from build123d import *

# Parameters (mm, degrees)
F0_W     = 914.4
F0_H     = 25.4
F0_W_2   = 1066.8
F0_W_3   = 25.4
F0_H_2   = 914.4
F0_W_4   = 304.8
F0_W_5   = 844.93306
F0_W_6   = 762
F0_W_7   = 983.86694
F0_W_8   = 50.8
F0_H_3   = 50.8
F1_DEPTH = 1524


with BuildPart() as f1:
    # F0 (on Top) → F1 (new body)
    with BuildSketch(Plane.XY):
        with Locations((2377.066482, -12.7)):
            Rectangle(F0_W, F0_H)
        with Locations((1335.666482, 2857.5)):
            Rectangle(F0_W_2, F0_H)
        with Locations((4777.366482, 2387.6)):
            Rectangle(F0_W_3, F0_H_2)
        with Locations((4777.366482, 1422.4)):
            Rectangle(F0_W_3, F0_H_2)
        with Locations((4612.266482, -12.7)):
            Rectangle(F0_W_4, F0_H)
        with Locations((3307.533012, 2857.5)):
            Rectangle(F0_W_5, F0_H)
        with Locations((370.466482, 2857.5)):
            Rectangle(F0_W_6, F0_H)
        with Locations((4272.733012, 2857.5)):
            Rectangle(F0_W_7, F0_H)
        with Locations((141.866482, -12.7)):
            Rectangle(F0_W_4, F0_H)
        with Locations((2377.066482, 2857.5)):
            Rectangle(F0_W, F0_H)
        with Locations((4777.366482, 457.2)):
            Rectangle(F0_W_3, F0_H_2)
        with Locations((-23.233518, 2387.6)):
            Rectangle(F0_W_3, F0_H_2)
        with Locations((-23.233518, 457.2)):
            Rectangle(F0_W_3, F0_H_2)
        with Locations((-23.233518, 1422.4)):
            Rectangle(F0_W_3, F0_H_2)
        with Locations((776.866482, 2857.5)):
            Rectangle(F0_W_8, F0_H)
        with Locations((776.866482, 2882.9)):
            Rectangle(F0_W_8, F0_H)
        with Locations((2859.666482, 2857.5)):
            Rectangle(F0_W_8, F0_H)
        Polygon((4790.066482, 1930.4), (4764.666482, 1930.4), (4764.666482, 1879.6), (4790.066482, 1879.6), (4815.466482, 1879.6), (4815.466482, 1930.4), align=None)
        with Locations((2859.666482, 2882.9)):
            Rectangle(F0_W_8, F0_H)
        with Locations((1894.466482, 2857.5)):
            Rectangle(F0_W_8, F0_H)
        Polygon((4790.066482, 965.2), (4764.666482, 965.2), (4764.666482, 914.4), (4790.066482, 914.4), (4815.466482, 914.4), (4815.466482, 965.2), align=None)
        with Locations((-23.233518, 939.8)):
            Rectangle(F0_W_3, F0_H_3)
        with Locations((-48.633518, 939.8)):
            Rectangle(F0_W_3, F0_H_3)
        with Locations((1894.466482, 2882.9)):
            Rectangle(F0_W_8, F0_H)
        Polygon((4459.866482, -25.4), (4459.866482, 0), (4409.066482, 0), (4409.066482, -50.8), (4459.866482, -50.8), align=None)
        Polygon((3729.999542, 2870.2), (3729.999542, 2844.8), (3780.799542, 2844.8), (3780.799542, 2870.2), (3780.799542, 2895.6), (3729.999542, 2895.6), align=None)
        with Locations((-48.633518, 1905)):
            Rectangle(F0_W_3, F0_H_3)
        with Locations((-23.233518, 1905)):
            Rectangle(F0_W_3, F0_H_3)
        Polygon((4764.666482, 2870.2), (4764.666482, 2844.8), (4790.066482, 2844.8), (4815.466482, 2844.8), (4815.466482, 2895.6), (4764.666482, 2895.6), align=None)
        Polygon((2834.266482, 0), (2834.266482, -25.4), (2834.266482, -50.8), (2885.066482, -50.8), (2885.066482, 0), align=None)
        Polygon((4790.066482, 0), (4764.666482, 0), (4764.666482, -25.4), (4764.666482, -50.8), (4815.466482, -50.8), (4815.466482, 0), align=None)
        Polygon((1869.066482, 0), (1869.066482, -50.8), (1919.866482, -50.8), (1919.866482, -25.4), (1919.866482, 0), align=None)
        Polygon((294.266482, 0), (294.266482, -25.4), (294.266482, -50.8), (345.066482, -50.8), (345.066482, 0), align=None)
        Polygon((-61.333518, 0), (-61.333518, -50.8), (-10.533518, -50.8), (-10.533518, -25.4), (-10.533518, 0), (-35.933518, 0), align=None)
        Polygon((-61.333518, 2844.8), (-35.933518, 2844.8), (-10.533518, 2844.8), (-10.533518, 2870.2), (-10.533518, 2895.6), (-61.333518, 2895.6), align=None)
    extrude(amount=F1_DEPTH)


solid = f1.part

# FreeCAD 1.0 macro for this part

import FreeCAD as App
import Part
import Sketcher

V = App.Vector
Q = App.Units.Quantity

doc = App.newDocument("Part")
params = doc.addObject("Spreadsheet::Sheet", "Params")
for row, (alias, value) in enumerate([
    ("sketch1_width", "36 in"),
    ("sketch1_width2", "2 in"),
    ("sketch1_width3", "30 in"),
    ("sketch1_width4", "1 in"),
    ("sketch1_width5", "12 in"),
    ("pad1_length", "60 in"),
], start=1):
    params.set(f"A{row}", alias)
    params.set(f"B{row}", "=" + value)
    params.setAlias(f"B{row}", alias)

body = doc.addObject("PartDesign::Body", "Body")
body.AllowCompound = True

# Sketch on XY plane
sketch1 = body.newObject("Sketcher::SketchObject", "Sketch")
sketch1.AttachmentSupport = (doc.getObject("XY_Plane"), [""])
sketch1.MapMode = "FlatFace"
sketch1.addGeometry([
    Part.LineSegment(V(1920, -25, 0), V(2834, -25, 0)),  # 0
    Part.LineSegment(V(2834, -25, 0), V(2834, -51, 0)),  # 1
    Part.LineSegment(V(2834, -51, 0), V(2885, -51, 0)),  # 2
    Part.LineSegment(V(2885, -51, 0), V(2885, 0, 0)),  # 3
    Part.LineSegment(V(2885, 0, 0), V(1869, 0, 0)),  # 4
    Part.LineSegment(V(1869, 0, 0), V(1869, -51, 0)),  # 5
    Part.LineSegment(V(1869, -51, 0), V(1920, -51, 0)),  # 6
    Part.LineSegment(V(1920, -51, 0), V(1920, -25, 0)),  # 7
    Part.LineSegment(V(802, 2870, 0), V(802, 2896, 0)),  # 8
    Part.LineSegment(V(802, 2896, 0), V(751, 2896, 0)),  # 9
    Part.LineSegment(V(751, 2896, 0), V(751, 2870, 0)),  # 10
    Part.LineSegment(V(751, 2870, 0), V(-11, 2870, 0)),  # 11
    Part.LineSegment(V(-11, 2870, 0), V(-11, 2896, 0)),  # 12
    Part.LineSegment(V(-11, 2896, 0), V(-61, 2896, 0)),  # 13
    Part.LineSegment(V(-61, 2896, 0), V(-61, 2845, 0)),  # 14
    Part.LineSegment(V(-61, 2845, 0), V(-36, 2845, 0)),  # 15
    Part.LineSegment(V(-36, 2845, 0), V(-36, 1930, 0)),  # 16
    Part.LineSegment(V(-36, 1930, 0), V(-61, 1930, 0)),  # 17
    Part.LineSegment(V(-61, 1930, 0), V(-61, 1880, 0)),  # 18
    Part.LineSegment(V(-61, 1880, 0), V(-36, 1880, 0)),  # 19
    Part.LineSegment(V(-36, 1880, 0), V(-36, 965, 0)),  # 20
    Part.LineSegment(V(-36, 965, 0), V(-61, 965, 0)),  # 21
    Part.LineSegment(V(-61, 965, 0), V(-61, 914, 0)),  # 22
    Part.LineSegment(V(-61, 914, 0), V(-36, 914, 0)),  # 23
    Part.LineSegment(V(-36, 914, 0), V(-36, 0, 0)),  # 24
    Part.LineSegment(V(-36, 0, 0), V(-61, 0, 0)),  # 25
    Part.LineSegment(V(-61, 0, 0), V(-61, -51, 0)),  # 26
    Part.LineSegment(V(-61, -51, 0), V(-11, -51, 0)),  # 27
    Part.LineSegment(V(-11, -51, 0), V(-11, -25, 0)),  # 28
    Part.LineSegment(V(-11, -25, 0), V(294, -25, 0)),  # 29
    Part.LineSegment(V(294, -25, 0), V(294, -51, 0)),  # 30
    Part.LineSegment(V(294, -51, 0), V(345, -51, 0)),  # 31
    Part.LineSegment(V(345, -51, 0), V(345, 0, 0)),  # 32
    Part.LineSegment(V(345, 0, 0), V(-11, 0, 0)),  # 33
    Part.LineSegment(V(-11, 0, 0), V(-11, 2845, 0)),  # 34
    Part.LineSegment(V(-11, 2845, 0), V(4765, 2845, 0)),  # 35
    Part.LineSegment(V(4765, 2845, 0), V(4765, 0, 0)),  # 36
    Part.LineSegment(V(4765, 0, 0), V(4409, 0, 0)),  # 37
    Part.LineSegment(V(4409, 0, 0), V(4409, -51, 0)),  # 38
    Part.LineSegment(V(4409, -51, 0), V(4460, -51, 0)),  # 39
    Part.LineSegment(V(4460, -51, 0), V(4460, -25, 0)),  # 40
    Part.LineSegment(V(4460, -25, 0), V(4765, -25, 0)),  # 41
    Part.LineSegment(V(4765, -25, 0), V(4765, -51, 0)),  # 42
    Part.LineSegment(V(4765, -51, 0), V(4815, -51, 0)),  # 43
    Part.LineSegment(V(4815, -51, 0), V(4815, 0, 0)),  # 44
    Part.LineSegment(V(4815, 0, 0), V(4790, 0, 0)),  # 45
    Part.LineSegment(V(4790, 0, 0), V(4790, 914, 0)),  # 46
    Part.LineSegment(V(4790, 914, 0), V(4815, 914, 0)),  # 47
    Part.LineSegment(V(4815, 914, 0), V(4815, 965, 0)),  # 48
    Part.LineSegment(V(4815, 965, 0), V(4790, 965, 0)),  # 49
    Part.LineSegment(V(4790, 965, 0), V(4790, 1880, 0)),  # 50
    Part.LineSegment(V(4790, 1880, 0), V(4815, 1880, 0)),  # 51
    Part.LineSegment(V(4815, 1880, 0), V(4815, 1930, 0)),  # 52
    Part.LineSegment(V(4815, 1930, 0), V(4790, 1930, 0)),  # 53
    Part.LineSegment(V(4790, 1930, 0), V(4790, 2845, 0)),  # 54
    Part.LineSegment(V(4790, 2845, 0), V(4815, 2845, 0)),  # 55
    Part.LineSegment(V(4815, 2845, 0), V(4815, 2896, 0)),  # 56
    Part.LineSegment(V(4815, 2896, 0), V(4765, 2896, 0)),  # 57
    Part.LineSegment(V(4765, 2896, 0), V(4765, 2870, 0)),  # 58
    Part.LineSegment(V(4765, 2870, 0), V(3781, 2870, 0)),  # 59
    Part.LineSegment(V(3781, 2870, 0), V(3781, 2896, 0)),  # 60
    Part.LineSegment(V(3781, 2896, 0), V(3730, 2896, 0)),  # 61
    Part.LineSegment(V(3730, 2896, 0), V(3730, 2870, 0)),  # 62
    Part.LineSegment(V(3730, 2870, 0), V(2885, 2870, 0)),  # 63
    Part.LineSegment(V(2885, 2870, 0), V(2885, 2896, 0)),  # 64
    Part.LineSegment(V(2885, 2896, 0), V(2834, 2896, 0)),  # 65
    Part.LineSegment(V(2834, 2896, 0), V(2834, 2870, 0)),  # 66
    Part.LineSegment(V(2834, 2870, 0), V(1920, 2870, 0)),  # 67
    Part.LineSegment(V(1920, 2870, 0), V(1920, 2896, 0)),  # 68
    Part.LineSegment(V(1920, 2896, 0), V(1869, 2896, 0)),  # 69
    Part.LineSegment(V(1869, 2896, 0), V(1869, 2870, 0)),  # 70
    Part.LineSegment(V(1869, 2870, 0), V(802, 2870, 0)),  # 71
], False)
sketch1.addConstraint([
    Sketcher.Constraint("Coincident", 0, 2, 1, 1),
    Sketcher.Constraint("Coincident", 1, 2, 2, 1),
    Sketcher.Constraint("Coincident", 2, 2, 3, 1),
    Sketcher.Constraint("Coincident", 3, 2, 4, 1),
    Sketcher.Constraint("Coincident", 4, 2, 5, 1),
    Sketcher.Constraint("Coincident", 5, 2, 6, 1),
    Sketcher.Constraint("Coincident", 6, 2, 7, 1),
    Sketcher.Constraint("Coincident", 7, 2, 0, 1),
    Sketcher.Constraint("Coincident", 8, 2, 9, 1),
    Sketcher.Constraint("Coincident", 9, 2, 10, 1),
    Sketcher.Constraint("Coincident", 10, 2, 11, 1),
    Sketcher.Constraint("Coincident", 11, 2, 12, 1),
    Sketcher.Constraint("Coincident", 12, 2, 13, 1),
    Sketcher.Constraint("Coincident", 13, 2, 14, 1),
    Sketcher.Constraint("Coincident", 14, 2, 15, 1),
    Sketcher.Constraint("Coincident", 15, 2, 16, 1),
    Sketcher.Constraint("Coincident", 16, 2, 17, 1),
    Sketcher.Constraint("Coincident", 17, 2, 18, 1),
    Sketcher.Constraint("Coincident", 18, 2, 19, 1),
    Sketcher.Constraint("Coincident", 19, 2, 20, 1),
    Sketcher.Constraint("Coincident", 20, 2, 21, 1),
    Sketcher.Constraint("Coincident", 21, 2, 22, 1),
    Sketcher.Constraint("Coincident", 22, 2, 23, 1),
    Sketcher.Constraint("Coincident", 23, 2, 24, 1),
    Sketcher.Constraint("Coincident", 24, 2, 25, 1),
    Sketcher.Constraint("Coincident", 25, 2, 26, 1),
    Sketcher.Constraint("Coincident", 26, 2, 27, 1),
    Sketcher.Constraint("Coincident", 27, 2, 28, 1),
    Sketcher.Constraint("Coincident", 28, 2, 29, 1),
    Sketcher.Constraint("Coincident", 29, 2, 30, 1),
    Sketcher.Constraint("Coincident", 30, 2, 31, 1),
    Sketcher.Constraint("Coincident", 31, 2, 32, 1),
    Sketcher.Constraint("Coincident", 32, 2, 33, 1),
    Sketcher.Constraint("Coincident", 33, 2, 34, 1),
    Sketcher.Constraint("Coincident", 34, 2, 35, 1),
    Sketcher.Constraint("Coincident", 35, 2, 36, 1),
    Sketcher.Constraint("Coincident", 36, 2, 37, 1),
    Sketcher.Constraint("Coincident", 37, 2, 38, 1),
    Sketcher.Constraint("Coincident", 38, 2, 39, 1),
    Sketcher.Constraint("Coincident", 39, 2, 40, 1),
    Sketcher.Constraint("Coincident", 40, 2, 41, 1),
    Sketcher.Constraint("Coincident", 41, 2, 42, 1),
    Sketcher.Constraint("Coincident", 42, 2, 43, 1),
    Sketcher.Constraint("Coincident", 43, 2, 44, 1),
    Sketcher.Constraint("Coincident", 44, 2, 45, 1),
    Sketcher.Constraint("Coincident", 45, 2, 46, 1),
    Sketcher.Constraint("Coincident", 46, 2, 47, 1),
    Sketcher.Constraint("Coincident", 47, 2, 48, 1),
    Sketcher.Constraint("Coincident", 48, 2, 49, 1),
    Sketcher.Constraint("Coincident", 49, 2, 50, 1),
    Sketcher.Constraint("Coincident", 50, 2, 51, 1),
    Sketcher.Constraint("Coincident", 51, 2, 52, 1),
    Sketcher.Constraint("Coincident", 52, 2, 53, 1),
    Sketcher.Constraint("Coincident", 53, 2, 54, 1),
    Sketcher.Constraint("Coincident", 54, 2, 55, 1),
    Sketcher.Constraint("Coincident", 55, 2, 56, 1),
    Sketcher.Constraint("Coincident", 56, 2, 57, 1),
    Sketcher.Constraint("Coincident", 57, 2, 58, 1),
    Sketcher.Constraint("Coincident", 58, 2, 59, 1),
    Sketcher.Constraint("Coincident", 59, 2, 60, 1),
    Sketcher.Constraint("Coincident", 60, 2, 61, 1),
    Sketcher.Constraint("Coincident", 61, 2, 62, 1),
    Sketcher.Constraint("Coincident", 62, 2, 63, 1),
    Sketcher.Constraint("Coincident", 63, 2, 64, 1),
    Sketcher.Constraint("Coincident", 64, 2, 65, 1),
    Sketcher.Constraint("Coincident", 65, 2, 66, 1),
    Sketcher.Constraint("Coincident", 66, 2, 67, 1),
    Sketcher.Constraint("Coincident", 67, 2, 68, 1),
    Sketcher.Constraint("Coincident", 68, 2, 69, 1),
    Sketcher.Constraint("Coincident", 69, 2, 70, 1),
    Sketcher.Constraint("Coincident", 70, 2, 71, 1),
    Sketcher.Constraint("Coincident", 71, 2, 8, 1),
    Sketcher.Constraint("Horizontal", 0),
    Sketcher.Constraint("Vertical", 1),
    Sketcher.Constraint("Horizontal", 2),
    Sketcher.Constraint("Vertical", 3),
    Sketcher.Constraint("Horizontal", 4),
    Sketcher.Constraint("Vertical", 5),
    Sketcher.Constraint("Horizontal", 6),
    Sketcher.Constraint("Vertical", 7),
    Sketcher.Constraint("Vertical", 8),
    Sketcher.Constraint("Horizontal", 9),
    Sketcher.Constraint("Vertical", 10),
    Sketcher.Constraint("Horizontal", 11),
    Sketcher.Constraint("Vertical", 12),
    Sketcher.Constraint("Horizontal", 13),
    Sketcher.Constraint("Vertical", 14),
    Sketcher.Constraint("Horizontal", 15),
    Sketcher.Constraint("Vertical", 16),
    Sketcher.Constraint("Horizontal", 17),
    Sketcher.Constraint("Vertical", 18),
    Sketcher.Constraint("Horizontal", 19),
    Sketcher.Constraint("Vertical", 20),
    Sketcher.Constraint("Horizontal", 21),
    Sketcher.Constraint("Vertical", 22),
    Sketcher.Constraint("Horizontal", 23),
    Sketcher.Constraint("Vertical", 24),
    Sketcher.Constraint("Horizontal", 25),
    Sketcher.Constraint("Vertical", 26),
    Sketcher.Constraint("Horizontal", 27),
    Sketcher.Constraint("Vertical", 28),
    Sketcher.Constraint("Horizontal", 29),
    Sketcher.Constraint("Vertical", 30),
    Sketcher.Constraint("Horizontal", 31),
    Sketcher.Constraint("Vertical", 32),
    Sketcher.Constraint("Horizontal", 33),
    Sketcher.Constraint("Vertical", 34),
    Sketcher.Constraint("Horizontal", 35),
    Sketcher.Constraint("Vertical", 36),
    Sketcher.Constraint("Horizontal", 37),
    Sketcher.Constraint("Vertical", 38),
    Sketcher.Constraint("Horizontal", 39),
    Sketcher.Constraint("Vertical", 40),
    Sketcher.Constraint("Horizontal", 41),
    Sketcher.Constraint("Vertical", 42),
    Sketcher.Constraint("Horizontal", 43),
    Sketcher.Constraint("Vertical", 44),
    Sketcher.Constraint("Horizontal", 45),
    Sketcher.Constraint("Vertical", 46),
    Sketcher.Constraint("Horizontal", 47),
    Sketcher.Constraint("Vertical", 48),
    Sketcher.Constraint("Horizontal", 49),
    Sketcher.Constraint("Vertical", 50),
    Sketcher.Constraint("Horizontal", 51),
    Sketcher.Constraint("Vertical", 52),
    Sketcher.Constraint("Horizontal", 53),
    Sketcher.Constraint("Vertical", 54),
    Sketcher.Constraint("Horizontal", 55),
    Sketcher.Constraint("Vertical", 56),
    Sketcher.Constraint("Horizontal", 57),
    Sketcher.Constraint("Vertical", 58),
    Sketcher.Constraint("Horizontal", 59),
    Sketcher.Constraint("Vertical", 60),
    Sketcher.Constraint("Horizontal", 61),
    Sketcher.Constraint("Vertical", 62),
    Sketcher.Constraint("Horizontal", 63),
    Sketcher.Constraint("Vertical", 64),
    Sketcher.Constraint("Horizontal", 65),
    Sketcher.Constraint("Vertical", 66),
    Sketcher.Constraint("Horizontal", 67),
    Sketcher.Constraint("Vertical", 68),
    Sketcher.Constraint("Horizontal", 69),
    Sketcher.Constraint("Vertical", 70),
    Sketcher.Constraint("Horizontal", 71),
    Sketcher.Constraint("PointOnObject", 3, 2, -1),
    Sketcher.Constraint("PointOnObject", 24, 2, -1),
    Sketcher.Constraint("PointOnObject", 32, 2, -1),
    Sketcher.Constraint("PointOnObject", 36, 2, -1),
    Sketcher.Constraint("PointOnObject", 44, 2, -1),
    Sketcher.Constraint("Horizontal", 2, 2, 5, 2),
    Sketcher.Constraint("Horizontal", 9, 2, 12, 2),
    Sketcher.Constraint("Horizontal", 6, 2, 26, 2),
    Sketcher.Constraint("Horizontal", 7, 2, 28, 2),
    Sketcher.Constraint("Horizontal", 27, 2, 30, 2),
    Sketcher.Constraint("Horizontal", 15, 2, 34, 2),
    Sketcher.Constraint("Horizontal", 31, 2, 38, 2),
    Sketcher.Constraint("Horizontal", 29, 2, 40, 2),
    Sketcher.Constraint("Horizontal", 39, 2, 42, 2),
    Sketcher.Constraint("Horizontal", 23, 2, 46, 2),
    Sketcher.Constraint("Horizontal", 21, 2, 48, 2),
    Sketcher.Constraint("Horizontal", 19, 2, 50, 2),
    Sketcher.Constraint("Horizontal", 17, 2, 52, 2),
    Sketcher.Constraint("Horizontal", 35, 2, 54, 2),
    Sketcher.Constraint("Horizontal", 13, 2, 56, 2),
    Sketcher.Constraint("Horizontal", 11, 2, 58, 2),
    Sketcher.Constraint("Horizontal", 57, 2, 60, 2),
    Sketcher.Constraint("Horizontal", 59, 2, 62, 2),
    Sketcher.Constraint("Horizontal", 61, 2, 64, 2),
    Sketcher.Constraint("Horizontal", 63, 2, 66, 2),
    Sketcher.Constraint("Horizontal", 65, 2, 68, 2),
    Sketcher.Constraint("Horizontal", 67, 2, 70, 2),
    Sketcher.Constraint("Vertical", 14, 2, 17, 2),
    Sketcher.Constraint("Vertical", 16, 2, 19, 2),
    Sketcher.Constraint("Vertical", 18, 2, 21, 2),
    Sketcher.Constraint("Vertical", 20, 2, 23, 2),
    Sketcher.Constraint("Vertical", 22, 2, 25, 2),
    Sketcher.Constraint("Vertical", 12, 2, 27, 2),
    Sketcher.Constraint("Vertical", 28, 2, 33, 2),
    Sketcher.Constraint("Vertical", 36, 2, 41, 2),
    Sketcher.Constraint("Vertical", 44, 2, 47, 2),
    Sketcher.Constraint("Vertical", 46, 2, 49, 2),
    Sketcher.Constraint("Vertical", 48, 2, 51, 2),
    Sketcher.Constraint("Vertical", 50, 2, 53, 2),
    Sketcher.Constraint("Vertical", 52, 2, 55, 2),
    Sketcher.Constraint("Vertical", 42, 2, 57, 2),
    Sketcher.Constraint("Vertical", 3, 2, 63, 2),
    Sketcher.Constraint("Vertical", 1, 2, 65, 2),
    Sketcher.Constraint("Vertical", 7, 2, 67, 2),
    Sketcher.Constraint("Vertical", 5, 2, 69, 2),
    Sketcher.Constraint("Equal", 2, 6),
    Sketcher.Constraint("Equal", 6, 9),
    Sketcher.Constraint("Equal", 9, 13),
    Sketcher.Constraint("Equal", 27, 31),
    Sketcher.Constraint("Equal", 33, 37),
    Sketcher.Constraint("Equal", 31, 39),
    Sketcher.Constraint("Equal", 39, 43),
    Sketcher.Constraint("Equal", 25, 45),
    Sketcher.Constraint("Equal", 57, 61),
    Sketcher.Constraint("Equal", 55, 1),
    Sketcher.Constraint("Equal", 69, 3),
    Sketcher.Constraint("Equal", 7, 8),
    Sketcher.Constraint("Equal", 5, 14),
    Sketcher.Constraint("Equal", 67, 16),
    Sketcher.Constraint("Equal", 14, 18),
    Sketcher.Constraint("Equal", 16, 20),
    Sketcher.Constraint("Equal", 18, 22),
    Sketcher.Constraint("Equal", 20, 24),
    Sketcher.Constraint("DistanceX", 0, 1, 0, 2, Q("36 in")),
    Sketcher.Constraint("DistanceX", 2, 1, 2, 2, Q("2 in")),
    Sketcher.Constraint("DistanceX", 11, 2, 11, 1, Q("30 in")),
    Sketcher.Constraint("DistanceX", 15, 1, 15, 2, Q("1 in")),
    Sketcher.Constraint("DistanceX", 29, 1, 29, 2, Q("12 in")),
    Sketcher.Constraint("DistanceX", 35, 1, 35, 2, Q("188 in")),
    Sketcher.Constraint("DistanceX", 71, 2, 71, 1, Q("42 in")),
    Sketcher.Constraint("DistanceX", 59, 2, 59, 1, Q("983.86694 mm")),
    Sketcher.Constraint("DistanceX", -1, 1, 4, 2, Q("1869.066482 mm")),
])
sketch1.setExpression("Constraints[207]", "Params.sketch1_width")
sketch1.setExpression("Constraints[208]", "Params.sketch1_width2")
sketch1.setExpression("Constraints[209]", "Params.sketch1_width3")
sketch1.setExpression("Constraints[210]", "Params.sketch1_width4")
sketch1.setExpression("Constraints[211]", "Params.sketch1_width5")
pad1 = body.newObject("PartDesign::Pad", "Pad")
pad1.Profile = sketch1
pad1.setExpression("Length", "Params.pad1_length")

doc.recompute()
